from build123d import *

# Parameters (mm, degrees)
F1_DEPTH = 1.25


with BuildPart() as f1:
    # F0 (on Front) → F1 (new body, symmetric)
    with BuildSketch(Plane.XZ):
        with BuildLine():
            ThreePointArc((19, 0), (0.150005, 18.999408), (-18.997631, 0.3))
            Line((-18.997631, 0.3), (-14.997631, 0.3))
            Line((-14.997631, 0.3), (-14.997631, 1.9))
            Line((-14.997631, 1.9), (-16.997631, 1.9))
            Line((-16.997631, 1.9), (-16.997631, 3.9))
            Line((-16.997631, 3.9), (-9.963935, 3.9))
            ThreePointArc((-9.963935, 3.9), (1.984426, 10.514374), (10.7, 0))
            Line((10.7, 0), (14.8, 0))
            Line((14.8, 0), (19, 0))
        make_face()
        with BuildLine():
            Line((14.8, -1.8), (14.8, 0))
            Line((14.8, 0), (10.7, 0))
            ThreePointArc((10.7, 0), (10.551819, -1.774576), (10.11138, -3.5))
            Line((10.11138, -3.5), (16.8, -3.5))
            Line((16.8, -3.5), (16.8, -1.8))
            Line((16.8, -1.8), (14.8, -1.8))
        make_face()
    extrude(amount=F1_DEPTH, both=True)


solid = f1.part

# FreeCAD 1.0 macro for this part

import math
import FreeCAD as App
import Part
import Sketcher
from FreeCAD import Vector
Q = App.Units.Quantity

doc = App.newDocument("Part")
body = doc.addObject("PartDesign::Body", "Body")

# Sketch on XZ plane
sketch1 = body.newObject("Sketcher::SketchObject", "Sketch")
sketch1.AttachmentSupport = (doc.getObject("XZ_Plane"), [""])
sketch1.MapMode = "FlatFace"
sketch1.addGeometry([
    Part.ArcOfCircle(Part.Circle(Vector(0, 0, 0), Vector(0, 0, 1), 19), math.radians(0), math.radians(179)),  # 0
    Part.LineSegment(Vector(-19, 0.3, 0), Vector(-15, 0.3, 0)),  # 1
    Part.LineSegment(Vector(-15, 0.3, 0), Vector(-15, 1.9, 0)),  # 2
    Part.LineSegment(Vector(-15, 1.9, 0), Vector(-17, 1.9, 0)),  # 3
    Part.LineSegment(Vector(-17, 1.9, 0), Vector(-17, 3.9, 0)),  # 4
    Part.LineSegment(Vector(-17, 3.9, 0), Vector(-10, 3.9, 0)),  # 5
    Part.ArcOfCircle(Part.Circle(Vector(0, 0, 0), Vector(0, 0, 1), 10.7), math.radians(0), math.radians(159)),  # 6
    Part.ArcOfCircle(Part.Circle(Vector(0, 0, 0), Vector(0, 0, 1), 10.7), math.radians(-19.09), math.radians(0)),  # 7
    Part.LineSegment(Vector(10.1, -3.5, 0), Vector(16.8, -3.5, 0)),  # 8
    Part.LineSegment(Vector(16.8, -3.5, 0), Vector(16.8, -1.8, 0)),  # 9
    Part.LineSegment(Vector(16.8, -1.8, 0), Vector(14.8, -1.8, 0)),  # 10
    Part.LineSegment(Vector(14.8, -1.8, 0), Vector(14.8, 0, 0)),  # 11
    Part.LineSegment(Vector(14.8, 0, 0), Vector(19, 0, 0)),  # 12
], False)
sketch1.addConstraint([
    Sketcher.Constraint("Coincident", 0, 2, 1, 1),
    Sketcher.Constraint("Coincident", 1, 2, 2, 1),
    Sketcher.Constraint("Coincident", 2, 2, 3, 1),
    Sketcher.Constraint("Coincident", 3, 2, 4, 1),
    Sketcher.Constraint("Coincident", 4, 2, 5, 1),
    Sketcher.Constraint("Coincident", 5, 2, 6, 2),
    Sketcher.Constraint("Tangent", 6, 1, 7, 2),
    Sketcher.Constraint("Coincident", 7, 1, 8, 1),
    Sketcher.Constraint("Coincident", 8, 2, 9, 1),
    Sketcher.Constraint("Coincident", 9, 2, 10, 1),
    Sketcher.Constraint("Coincident", 10, 2, 11, 1),
    Sketcher.Constraint("Coincident", 11, 2, 12, 1),
    Sketcher.Constraint("Coincident", 12, 2, 0, 1),
    Sketcher.Constraint("Horizontal", 1),
    Sketcher.Constraint("Vertical", 2),
    Sketcher.Constraint("Horizontal", 3),
    Sketcher.Constraint("Vertical", 4),
    Sketcher.Constraint("Horizontal", 5),
    Sketcher.Constraint("Horizontal", 8),
    Sketcher.Constraint("Vertical", 9),
    Sketcher.Constraint("Horizontal", 10),
    Sketcher.Constraint("Vertical", 11),
    Sketcher.Constraint("Horizontal", 12),
    Sketcher.Constraint("Coincident", 0, 3, -1, 1),
    Sketcher.Constraint("Coincident", 6, 3, -1, 1),
    Sketcher.Constraint("PointOnObject", 6, 1, -1),
    Sketcher.Constraint("PointOnObject", 11, 2, -1),
    Sketcher.Constraint("Equal", 3, 10),
    Sketcher.Constraint("Equal", 10, 4),
    Sketcher.Constraint("Radius", 0, Q("19 mm")),
    Sketcher.Constraint("Radius", 6, Q("10.7 mm")),
    Sketcher.Constraint("DistanceX", 1, 1, 1, 2, Q("4 mm")),
    Sketcher.Constraint("DistanceX", 3, 2, 3, 1, Q("2 mm")),
    Sketcher.Constraint("DistanceX", 12, 1, 12, 2, Q("4.2 mm")),
    Sketcher.Constraint("DistanceY", 2, 1, 2, 2, Q("1.6 mm")),
    Sketcher.Constraint("DistanceY", 9, 1, 9, 2, Q("1.7 mm")),
    Sketcher.Constraint("DistanceY", 11, 1, 11, 2, Q("1.8 mm")),
    Sketcher.Constraint("DistanceY", -1, 1, 0, 2, Q("0.3 mm")),
    Sketcher.Constraint("Radius", 7, Q("10.699995 mm")),
])
pad1 = body.newObject("PartDesign::Pad", "Pad")
pad1.Profile = sketch1
pad1.Length = 2.5
pad1.Midplane = True

doc.recompute()
